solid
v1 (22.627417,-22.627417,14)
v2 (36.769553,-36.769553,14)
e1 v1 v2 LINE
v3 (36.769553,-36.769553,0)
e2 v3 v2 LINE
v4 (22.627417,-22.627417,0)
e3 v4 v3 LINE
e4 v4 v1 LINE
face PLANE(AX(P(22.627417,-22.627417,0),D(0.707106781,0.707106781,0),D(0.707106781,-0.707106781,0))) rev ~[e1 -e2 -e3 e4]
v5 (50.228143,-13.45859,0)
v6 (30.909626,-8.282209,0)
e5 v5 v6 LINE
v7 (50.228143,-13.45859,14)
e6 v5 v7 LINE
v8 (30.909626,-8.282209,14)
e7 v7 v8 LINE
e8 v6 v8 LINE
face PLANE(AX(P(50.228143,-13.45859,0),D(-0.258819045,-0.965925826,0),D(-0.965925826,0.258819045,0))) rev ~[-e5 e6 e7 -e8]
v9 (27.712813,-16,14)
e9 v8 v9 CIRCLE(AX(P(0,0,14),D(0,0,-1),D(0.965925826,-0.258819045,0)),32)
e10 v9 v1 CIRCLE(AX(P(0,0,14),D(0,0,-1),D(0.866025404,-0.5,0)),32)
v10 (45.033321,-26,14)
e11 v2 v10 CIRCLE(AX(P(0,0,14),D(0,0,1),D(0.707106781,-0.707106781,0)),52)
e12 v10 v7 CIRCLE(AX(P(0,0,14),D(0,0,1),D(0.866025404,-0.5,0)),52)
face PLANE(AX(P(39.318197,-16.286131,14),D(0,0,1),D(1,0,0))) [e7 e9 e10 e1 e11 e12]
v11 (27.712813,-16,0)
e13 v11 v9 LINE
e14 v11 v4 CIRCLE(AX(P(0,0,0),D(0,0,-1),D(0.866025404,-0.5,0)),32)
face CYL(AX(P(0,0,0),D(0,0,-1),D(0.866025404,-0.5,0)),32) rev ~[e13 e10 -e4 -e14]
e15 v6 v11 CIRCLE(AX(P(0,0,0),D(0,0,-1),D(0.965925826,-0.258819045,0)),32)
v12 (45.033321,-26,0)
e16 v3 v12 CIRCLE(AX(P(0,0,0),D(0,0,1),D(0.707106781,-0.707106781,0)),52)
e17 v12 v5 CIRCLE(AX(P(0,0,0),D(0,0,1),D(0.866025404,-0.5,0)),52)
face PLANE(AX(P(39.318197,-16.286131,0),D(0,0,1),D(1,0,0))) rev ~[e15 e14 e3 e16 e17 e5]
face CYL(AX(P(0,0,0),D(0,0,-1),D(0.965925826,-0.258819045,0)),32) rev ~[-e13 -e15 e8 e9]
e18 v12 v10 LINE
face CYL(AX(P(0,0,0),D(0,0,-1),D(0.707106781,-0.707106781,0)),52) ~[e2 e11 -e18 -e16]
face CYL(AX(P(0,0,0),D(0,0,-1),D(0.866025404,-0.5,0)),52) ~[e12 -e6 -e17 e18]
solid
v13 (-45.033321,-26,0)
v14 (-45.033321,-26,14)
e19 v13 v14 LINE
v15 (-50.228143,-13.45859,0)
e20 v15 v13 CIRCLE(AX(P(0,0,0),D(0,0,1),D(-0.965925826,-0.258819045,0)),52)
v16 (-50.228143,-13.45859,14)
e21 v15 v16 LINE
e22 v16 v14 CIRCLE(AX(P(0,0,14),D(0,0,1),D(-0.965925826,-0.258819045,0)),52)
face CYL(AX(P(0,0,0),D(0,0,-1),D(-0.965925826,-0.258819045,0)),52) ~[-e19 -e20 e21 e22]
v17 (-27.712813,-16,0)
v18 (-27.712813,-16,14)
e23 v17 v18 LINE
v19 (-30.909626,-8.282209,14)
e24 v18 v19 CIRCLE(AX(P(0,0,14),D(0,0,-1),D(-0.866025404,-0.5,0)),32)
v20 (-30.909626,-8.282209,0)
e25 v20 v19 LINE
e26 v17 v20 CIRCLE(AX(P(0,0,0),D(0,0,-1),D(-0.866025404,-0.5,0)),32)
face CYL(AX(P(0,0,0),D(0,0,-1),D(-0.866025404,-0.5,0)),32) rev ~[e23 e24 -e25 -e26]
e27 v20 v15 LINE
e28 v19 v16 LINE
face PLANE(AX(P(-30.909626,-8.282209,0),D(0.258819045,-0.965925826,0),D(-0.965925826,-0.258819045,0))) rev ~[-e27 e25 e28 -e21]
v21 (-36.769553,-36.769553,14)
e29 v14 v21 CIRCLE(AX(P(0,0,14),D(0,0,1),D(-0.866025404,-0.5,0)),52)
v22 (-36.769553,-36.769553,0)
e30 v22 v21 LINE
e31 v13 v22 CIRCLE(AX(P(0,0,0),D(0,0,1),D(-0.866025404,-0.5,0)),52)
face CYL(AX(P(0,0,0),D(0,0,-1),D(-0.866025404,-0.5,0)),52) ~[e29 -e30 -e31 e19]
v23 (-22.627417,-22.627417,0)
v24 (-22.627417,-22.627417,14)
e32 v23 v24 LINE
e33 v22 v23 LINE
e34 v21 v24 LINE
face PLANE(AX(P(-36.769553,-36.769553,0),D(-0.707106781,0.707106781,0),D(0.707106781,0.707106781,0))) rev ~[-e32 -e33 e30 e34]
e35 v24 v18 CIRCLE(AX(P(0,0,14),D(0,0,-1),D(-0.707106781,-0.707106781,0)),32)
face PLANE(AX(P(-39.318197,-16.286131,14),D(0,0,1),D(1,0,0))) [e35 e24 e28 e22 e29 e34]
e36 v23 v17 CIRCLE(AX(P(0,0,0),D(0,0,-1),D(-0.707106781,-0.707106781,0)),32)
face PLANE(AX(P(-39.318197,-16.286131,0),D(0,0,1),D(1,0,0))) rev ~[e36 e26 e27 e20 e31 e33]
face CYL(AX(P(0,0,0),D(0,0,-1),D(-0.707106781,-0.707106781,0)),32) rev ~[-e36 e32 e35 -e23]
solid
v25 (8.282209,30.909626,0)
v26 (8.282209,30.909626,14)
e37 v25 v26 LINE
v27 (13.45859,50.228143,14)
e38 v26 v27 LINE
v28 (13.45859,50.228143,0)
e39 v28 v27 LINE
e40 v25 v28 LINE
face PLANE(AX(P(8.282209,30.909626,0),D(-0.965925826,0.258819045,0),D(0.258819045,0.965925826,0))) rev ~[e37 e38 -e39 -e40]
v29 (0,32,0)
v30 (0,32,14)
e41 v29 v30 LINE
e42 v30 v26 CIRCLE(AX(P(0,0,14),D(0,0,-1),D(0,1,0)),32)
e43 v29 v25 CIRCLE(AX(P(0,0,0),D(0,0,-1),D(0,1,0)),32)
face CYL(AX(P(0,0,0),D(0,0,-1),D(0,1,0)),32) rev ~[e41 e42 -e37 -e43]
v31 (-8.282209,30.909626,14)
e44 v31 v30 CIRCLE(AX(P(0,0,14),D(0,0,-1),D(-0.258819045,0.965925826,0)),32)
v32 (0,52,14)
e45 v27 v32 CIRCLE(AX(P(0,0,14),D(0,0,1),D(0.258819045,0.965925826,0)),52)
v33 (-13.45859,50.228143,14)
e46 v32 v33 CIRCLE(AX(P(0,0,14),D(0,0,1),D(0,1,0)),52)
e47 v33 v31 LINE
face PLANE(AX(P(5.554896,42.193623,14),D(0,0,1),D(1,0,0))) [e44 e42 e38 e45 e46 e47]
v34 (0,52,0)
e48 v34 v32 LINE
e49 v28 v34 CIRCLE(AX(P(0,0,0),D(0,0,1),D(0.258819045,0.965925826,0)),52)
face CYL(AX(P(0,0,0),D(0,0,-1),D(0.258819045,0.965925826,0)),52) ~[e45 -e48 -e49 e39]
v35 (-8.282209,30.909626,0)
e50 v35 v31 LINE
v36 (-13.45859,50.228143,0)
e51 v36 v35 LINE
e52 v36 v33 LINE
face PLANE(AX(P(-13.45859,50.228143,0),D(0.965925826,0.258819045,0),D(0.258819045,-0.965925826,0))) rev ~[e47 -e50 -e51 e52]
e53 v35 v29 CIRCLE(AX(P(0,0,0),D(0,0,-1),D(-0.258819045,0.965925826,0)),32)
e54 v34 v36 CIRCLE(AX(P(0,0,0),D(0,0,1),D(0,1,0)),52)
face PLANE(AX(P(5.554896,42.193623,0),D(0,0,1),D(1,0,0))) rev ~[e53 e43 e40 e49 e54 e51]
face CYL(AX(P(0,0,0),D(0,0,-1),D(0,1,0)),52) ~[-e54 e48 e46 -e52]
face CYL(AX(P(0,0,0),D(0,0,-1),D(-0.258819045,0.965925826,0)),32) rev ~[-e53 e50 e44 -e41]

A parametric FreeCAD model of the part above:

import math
import FreeCAD as App
import Part
import Sketcher
from FreeCAD import Vector
Q = App.Units.Quantity

doc = App.newDocument("Part")
params = doc.addObject("Spreadsheet::Sheet", "Params")
for row, (alias, value) in enumerate([
    ("sketch1_radius", "52 mm"),
    ("sketch1_radius2", "32 mm"),
    ("pad1_length", "14 mm"),
    ("sketch2_radius", "52 mm"),
    ("sketch2_radius2", "32 mm"),
    ("pad2_length", "14 mm"),
    ("sketch3_radius", "52 mm"),
    ("sketch3_radius2", "32 mm"),
    ("pad3_length", "14 mm"),
    ("sketch4_radius", "52 mm"),
    ("sketch4_radius2", "32 mm"),
    ("pad4_length", "14 mm"),
], start=1):
    params.set(f"A{row}", alias)
    params.set(f"B{row}", "=" + value)
    params.setAlias(f"B{row}", alias)

body = doc.addObject("PartDesign::Body", "Body")

sketch1 = body.newObject("Sketcher::SketchObject", "Sketch")
sketch1.AttachmentSupport = (doc.getObject("XY_Plane"), [""])
sketch1.MapMode = "FlatFace"
sketch1.addGeometry([
    Part.LineSegment(Vector(8, 31, 0), Vector(13, 50, 0)),
    Part.ArcOfCircle(Part.Circle(Vector(0, 0, 0), Vector(0, 0, 1), 52), math.radians(75), math.radians(90)),
    Part.ArcOfCircle(Part.Circle(Vector(0, 0, 0), Vector(0, 0, 1), 52), math.radians(90), math.radians(105)),
    Part.LineSegment(Vector(-13, 50, 0), Vector(-8, 31, 0)),
    Part.ArcOfCircle(Part.Circle(Vector(0, 0, 0), Vector(0, 0, 1), 32), math.radians(90), math.radians(105)),
    Part.ArcOfCircle(Part.Circle(Vector(0, 0, 0), Vector(0, 0, 1), 32), math.radians(75), math.radians(90)),
], False)
sketch1.addConstraint([
    Sketcher.Constraint("Coincident", 0, 2, 1, 1),
    Sketcher.Constraint("Tangent", 1, 2, 2, 1),
    Sketcher.Constraint("Coincident", 2, 2, 3, 1),
    Sketcher.Constraint("Coincident", 3, 2, 4, 2),
    Sketcher.Constraint("Tangent", 4, 1, 5, 2),
    Sketcher.Constraint("Coincident", 5, 1, 0, 1),
    Sketcher.Constraint("Coincident", 1, 3, -1, 1),
    Sketcher.Constraint("Coincident", 4, 3, -1, 1),
    Sketcher.Constraint("Equal", 1, 2),
    Sketcher.Constraint("Equal", 4, 5),
    Sketcher.Constraint("PointOnObject", 1, 2, -2),
    Sketcher.Constraint("PointOnObject", 4, 1, -2),
    Sketcher.Constraint("Horizontal", 0, 2, 2, 2),
    Sketcher.Constraint("Horizontal", 3, 2, 5, 1),
    Sketcher.Constraint("Radius", 1, 52.0),
    Sketcher.Constraint("Radius", 4, 32.0),
    Sketcher.Constraint("Angle", 0, Q("75 deg")),
    Sketcher.Constraint("DistanceX", 3, 2, 0, 2, 21.7408),
])
sketch1.setExpression("Constraints[14]", "Params.sketch1_radius")
sketch1.setExpression("Constraints[15]", "Params.sketch1_radius2")
pad1 = body.newObject("PartDesign::Pad", "Pad")
pad1.Profile = sketch1
pad1.setExpression("Length", "Params.pad1_length")

sketch2 = body.newObject("Sketcher::SketchObject", "Sketch001")
sketch2.AttachmentSupport = (doc.getObject("XY_Plane"), [""])
sketch2.MapMode = "FlatFace"
sketch2.addGeometry([
    Part.ArcOfCircle(Part.Circle(Vector(0, 0, 0), Vector(0, 0, 1), 52), math.radians(90), math.radians(105)),
    Part.LineSegment(Vector(-13, 50, 0), Vector(-8, 31, 0)),
    Part.ArcOfCircle(Part.Circle(Vector(0, 0, 0), Vector(0, 0, 1), 32), math.radians(90), math.radians(105)),
    Part.ArcOfCircle(Part.Circle(Vector(0, 0, 0), Vector(0, 0, 1), 32), math.radians(75), math.radians(90)),
    Part.LineSegment(Vector(8, 31, 0), Vector(13, 50, 0)),
    Part.ArcOfCircle(Part.Circle(Vector(0, 0, 0), Vector(0, 0, 1), 52), math.radians(75), math.radians(90)),
], False)
sketch2.addConstraint([
    Sketcher.Constraint("Coincident", 0, 2, 1, 1),
    Sketcher.Constraint("Coincident", 1, 2, 2, 2),
    Sketcher.Constraint("Tangent", 2, 1, 3, 2),
    Sketcher.Constraint("Coincident", 3, 1, 4, 1),
    Sketcher.Constraint("Coincident", 4, 2, 5, 1),
    Sketcher.Constraint("Tangent", 5, 2, 0, 1),
    Sketcher.Constraint("Coincident", 0, 3, -1, 1),
    Sketcher.Constraint("Coincident", 2, 3, -1, 1),
    Sketcher.Constraint("Equal", 2, 3),
    Sketcher.Constraint("Equal", 0, 5),
    Sketcher.Constraint("PointOnObject", 2, 1, -2),
    Sketcher.Constraint("PointOnObject", 5, 2, -2),
    Sketcher.Constraint("Horizontal", 1, 2, 3, 1),
    Sketcher.Constraint("Horizontal", 0, 2, 4, 2),
    Sketcher.Constraint("Radius", 0, 52.0),
    Sketcher.Constraint("Radius", 2, 32.0),
    Sketcher.Constraint("Angle", 1, Q("-75 deg")),
    Sketcher.Constraint("DistanceX", 0, 2, 3, 1, 21.7408),
])
sketch2.setExpression("Constraints[14]", "Params.sketch2_radius")
sketch2.setExpression("Constraints[15]", "Params.sketch2_radius2")
pad2 = body.newObject("PartDesign::Pad", "Pad001")
pad2.Profile = sketch2
pad2.setExpression("Length", "Params.pad2_length")
body2 = doc.addObject("PartDesign::Body", "Body001")

sketch3 = body2.newObject("Sketcher::SketchObject", "Sketch002")
sketch3.AttachmentSupport = (doc.getObject("XY_Plane001"), [""])
sketch3.MapMode = "FlatFace"
sketch3.addGeometry([
    Part.LineSegment(Vector(-31, -8, 0), Vector(-50, -13, 0)),
    Part.ArcOfCircle(Part.Circle(Vector(0, 0, 0), Vector(0, 0, 1), 52), math.radians(-165), math.radians(-150)),
    Part.ArcOfCircle(Part.Circle(Vector(0, 0, 0), Vector(0, 0, 1), 52), math.radians(-150), math.radians(-135)),
    Part.LineSegment(Vector(-37, -37, 0), Vector(-23, -23, 0)),
    Part.ArcOfCircle(Part.Circle(Vector(0, 0, 0), Vector(0, 0, 1), 32), math.radians(-150), math.radians(-135)),
    Part.ArcOfCircle(Part.Circle(Vector(0, 0, 0), Vector(0, 0, 1), 32), math.radians(-165), math.radians(-150)),
], False)
sketch3.addConstraint([
    Sketcher.Constraint("Coincident", 0, 2, 1, 1),
    Sketcher.Constraint("Tangent", 1, 2, 2, 1),
    Sketcher.Constraint("Coincident", 2, 2, 3, 1),
    Sketcher.Constraint("Coincident", 3, 2, 4, 2),
    Sketcher.Constraint("Tangent", 4, 1, 5, 2),
    Sketcher.Constraint("Coincident", 5, 1, 0, 1),
    Sketcher.Constraint("Coincident", 1, 3, -1, 1),
    Sketcher.Constraint("Coincident", 4, 3, -1, 1),
    Sketcher.Constraint("Equal", 1, 2),
    Sketcher.Constraint("Equal", 4, 5),
    Sketcher.Constraint("Radius", 1, 52.0),
    Sketcher.Constraint("Radius", 4, 32.0),
    Sketcher.Constraint("Angle", 0, Q("-165 deg")),
    Sketcher.Constraint("Angle", 3, Q("45 deg")),
    Sketcher.Constraint("DistanceY", 1, 2, -1, 1, 26.0),
    Sketcher.Constraint("DistanceY", 4, 1, -1, 1, 16.0),
    Sketcher.Constraint("DistanceY", 0, 2, -1, 1, 13.45859),
    Sketcher.Constraint("DistanceX", 1, 2, 2, 2, 8.263768),
])
sketch3.setExpression("Constraints[10]", "Params.sketch3_radius")
sketch3.setExpression("Constraints[11]", "Params.sketch3_radius2")
pad3 = body2.newObject("PartDesign::Pad", "Pad002")
pad3.Profile = sketch3
pad3.setExpression("Length", "Params.pad3_length")
body3 = doc.addObject("PartDesign::Body", "Body002")

sketch4 = body3.newObject("Sketcher::SketchObject", "Sketch003")
sketch4.AttachmentSupport = (doc.getObject("XY_Plane002"), [""])
sketch4.MapMode = "FlatFace"
sketch4.addGeometry([
    Part.ArcOfCircle(Part.Circle(Vector(0, 0, 0), Vector(0, 0, 1), 52), math.radians(-30), math.radians(-15)),
    Part.LineSegment(Vector(50, -13, 0), Vector(31, -8, 0)),
    Part.ArcOfCircle(Part.Circle(Vector(0, 0, 0), Vector(0, 0, 1), 32), math.radians(-30), math.radians(-15)),
    Part.ArcOfCircle(Part.Circle(Vector(0, 0, 0), Vector(0, 0, 1), 32), math.radians(-45), math.radians(-30)),
    Part.LineSegment(Vector(23, -23, 0), Vector(37, -37, 0)),
    Part.ArcOfCircle(Part.Circle(Vector(0, 0, 0), Vector(0, 0, 1), 52), math.radians(-45), math.radians(-30)),
], False)
sketch4.addConstraint([
    Sketcher.Constraint("Coincident", 0, 2, 1, 1),
    Sketcher.Constraint("Coincident", 1, 2, 2, 2),
    Sketcher.Constraint("Tangent", 2, 1, 3, 2),
    Sketcher.Constraint("Coincident", 3, 1, 4, 1),
    Sketcher.Constraint("Coincident", 4, 2, 5, 1),
    Sketcher.Constraint("Tangent", 5, 2, 0, 1),
    Sketcher.Constraint("Coincident", 0, 3, -1, 1),
    Sketcher.Constraint("Coincident", 2, 3, -1, 1),
    Sketcher.Constraint("Equal", 2, 3),
    Sketcher.Constraint("Equal", 0, 5),
    Sketcher.Constraint("Radius", 0, 52.0),
    Sketcher.Constraint("Radius", 2, 32.0),
    Sketcher.Constraint("Angle", 1, Q("165 deg")),
    Sketcher.Constraint("Angle", 4, Q("-45 deg")),
    Sketcher.Constraint("DistanceY", 2, 1, -1, 1, 16.0),
    Sketcher.Constraint("DistanceY", 5, 2, -1, 1, 26.0),
    Sketcher.Constraint("DistanceY", 0, 2, -1, 1, 13.45859),
    Sketcher.Constraint("DistanceX", 3, 1, 1, 2, 8.282209),
])
sketch4.setExpression("Constraints[10]", "Params.sketch4_radius")
sketch4.setExpression("Constraints[11]", "Params.sketch4_radius2")
pad4 = body3.newObject("PartDesign::Pad", "Pad003")
pad4.Profile = sketch4
pad4.setExpression("Length", "Params.pad4_length")

doc.recompute()
